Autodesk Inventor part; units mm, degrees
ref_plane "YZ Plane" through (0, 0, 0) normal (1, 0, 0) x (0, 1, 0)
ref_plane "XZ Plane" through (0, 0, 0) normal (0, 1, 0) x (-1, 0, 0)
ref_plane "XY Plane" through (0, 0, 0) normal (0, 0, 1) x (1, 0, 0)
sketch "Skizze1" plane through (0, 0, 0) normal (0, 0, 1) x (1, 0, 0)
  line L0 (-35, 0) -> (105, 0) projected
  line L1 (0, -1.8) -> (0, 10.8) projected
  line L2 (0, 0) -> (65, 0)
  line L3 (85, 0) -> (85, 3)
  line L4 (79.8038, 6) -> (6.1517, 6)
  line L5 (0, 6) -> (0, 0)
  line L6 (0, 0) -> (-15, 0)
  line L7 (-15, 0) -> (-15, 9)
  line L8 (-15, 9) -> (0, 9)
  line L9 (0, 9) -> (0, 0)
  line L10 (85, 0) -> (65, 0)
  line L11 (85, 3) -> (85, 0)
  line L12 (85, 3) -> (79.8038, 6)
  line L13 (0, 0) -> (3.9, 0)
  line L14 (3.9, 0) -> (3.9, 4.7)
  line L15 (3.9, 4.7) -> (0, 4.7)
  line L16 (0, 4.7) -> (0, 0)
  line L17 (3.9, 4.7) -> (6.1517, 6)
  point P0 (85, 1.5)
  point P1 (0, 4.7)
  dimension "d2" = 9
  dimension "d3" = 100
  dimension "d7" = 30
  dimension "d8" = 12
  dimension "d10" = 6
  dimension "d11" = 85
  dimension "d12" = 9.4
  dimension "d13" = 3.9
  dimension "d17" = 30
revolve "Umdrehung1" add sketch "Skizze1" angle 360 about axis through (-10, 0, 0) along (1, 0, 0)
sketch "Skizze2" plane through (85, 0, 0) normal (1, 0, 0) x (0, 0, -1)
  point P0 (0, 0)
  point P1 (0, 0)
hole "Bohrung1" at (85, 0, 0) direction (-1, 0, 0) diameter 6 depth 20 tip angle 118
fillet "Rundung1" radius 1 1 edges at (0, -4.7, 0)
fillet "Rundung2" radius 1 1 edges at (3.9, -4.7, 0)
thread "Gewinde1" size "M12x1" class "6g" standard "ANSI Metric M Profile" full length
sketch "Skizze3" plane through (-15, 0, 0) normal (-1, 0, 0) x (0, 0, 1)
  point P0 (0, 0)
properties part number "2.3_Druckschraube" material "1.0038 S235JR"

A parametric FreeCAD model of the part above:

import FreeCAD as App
import Part
import Sketcher

V = App.Vector
Q = App.Units.Quantity


def edges_at(feature, points):
    """Names of the edges that pass closest to the given points."""
    edges = feature.Shape.Edges
    near = lambda p: min(range(len(edges)), key=lambda i: edges[i].distToShape(Part.Vertex(*p))[0])
    return sorted({f"Edge{near(p) + 1}" for p in points})

doc = App.newDocument("Part")
params = doc.addObject("Spreadsheet::Sheet", "Params")
for row, (alias, value) in enumerate([
    ("sketch1_width", "100 mm"),
    ("sketch1_height", "9 mm"),
    ("sketch1_length", "6 mm"),
    ("sketch1_width2", "3.9 mm"),
    ("sketch1_height2", "3 mm"),
    ("revolution_angle", "360 deg"),
    ("sketch2_diameter", "6 mm"),
    ("hole_diameter", "6 mm"),
    ("hole_depth", "20 mm"),
    ("fillet_radius", "1 mm"),
    ("fillet2_radius", "1 mm"),
], start=1):
    params.set(f"A{row}", alias)
    params.set(f"B{row}", "=" + value)
    params.setAlias(f"B{row}", alias)

body = doc.addObject("PartDesign::Body", "Body")

# Sketch on XY plane
sketch1 = body.newObject("Sketcher::SketchObject", "Sketch")
sketch1.AttachmentSupport = (doc.getObject("XY_Plane"), [""])
sketch1.MapMode = "FlatFace"
sketch1.addGeometry([
    Part.LineSegment(V(-15, 9, 0), V(-15, 0, 0)),  # 0
    Part.LineSegment(V(-15, 0, 0), V(85, 0, 0)),  # 1
    Part.LineSegment(V(85, 0, 0), V(85, 3, 0)),  # 2
    Part.LineSegment(V(85, 3, 0), V(79.8, 6, 0)),  # 3
    Part.LineSegment(V(79.8, 6, 0), V(6.2, 6, 0)),  # 4
    Part.LineSegment(V(6.2, 6, 0), V(3.9, 4.7, 0)),  # 5
    Part.LineSegment(V(3.9, 4.7, 0), V(0, 4.7, 0)),  # 6
    Part.LineSegment(V(0, 4.7, 0), V(0, 9, 0)),  # 7
    Part.LineSegment(V(0, 9, 0), V(-15, 9, 0)),  # 8
], False)
sketch1.addConstraint([
    Sketcher.Constraint("Coincident", 0, 2, 1, 1),
    Sketcher.Constraint("Coincident", 1, 2, 2, 1),
    Sketcher.Constraint("Coincident", 2, 2, 3, 1),
    Sketcher.Constraint("Coincident", 3, 2, 4, 1),
    Sketcher.Constraint("Coincident", 4, 2, 5, 1),
    Sketcher.Constraint("Coincident", 5, 2, 6, 1),
    Sketcher.Constraint("Coincident", 6, 2, 7, 1),
    Sketcher.Constraint("Coincident", 7, 2, 8, 1),
    Sketcher.Constraint("Coincident", 8, 2, 0, 1),
    Sketcher.Constraint("Vertical", 0),
    Sketcher.Constraint("Horizontal", 1),
    Sketcher.Constraint("Vertical", 2),
    Sketcher.Constraint("Horizontal", 4),
    Sketcher.Constraint("Horizontal", 6),
    Sketcher.Constraint("Vertical", 7),
    Sketcher.Constraint("Horizontal", 8),
    Sketcher.Constraint("PointOnObject", 0, 2, -1),
    Sketcher.Constraint("PointOnObject", 6, 2, -2),
    Sketcher.Constraint("DistanceX", 1, 1, 1, 2, 100.0),
    Sketcher.Constraint("DistanceY", 0, 2, 0, 1, 9.0),
    Sketcher.Constraint("Distance", 3, 6.0),
    Sketcher.Constraint("DistanceX", 6, 2, 6, 1, 3.9),
    Sketcher.Constraint("DistanceX", -1, 1, 1, 2, 85.0),
    Sketcher.Constraint("DistanceY", -1, 1, 3, 2, 6.0),
    Sketcher.Constraint("DistanceY", 2, 1, 2, 2, 3.0),
    Sketcher.Constraint("Angle", 5, Q("-150.0004 deg")),
    Sketcher.Constraint("DistanceY", 7, 1, 7, 2, 4.3),
])
sketch1.setExpression("Constraints[18]", "Params.sketch1_width")
sketch1.setExpression("Constraints[19]", "Params.sketch1_height")
sketch1.setExpression("Constraints[20]", "Params.sketch1_length")
sketch1.setExpression("Constraints[21]", "Params.sketch1_width2")
sketch1.setExpression("Constraints[24]", "Params.sketch1_height2")
revolution = body.newObject("PartDesign::Revolution", "Revolution")
revolution.Profile = sketch1
revolution.ReferenceAxis = (sketch1, ["H_Axis"])
revolution.setExpression("Angle", "Params.revolution_angle")

# Sketch on YZ plane
sketch2 = body.newObject("Sketcher::SketchObject", "Sketch001")
sketch2.AttachmentSupport = (doc.getObject("YZ_Plane"), [""])
sketch2.MapMode = "FlatFace"
sketch2.AttachmentOffset = App.Placement(V(0, 0, 85), App.Rotation())
sketch2.addGeometry(Part.Circle(V(0, 0, 0), V(0, 0, 1), 3), False)
sketch2.addConstraint([
    Sketcher.Constraint("Coincident", 0, 3, -1, 1),
    Sketcher.Constraint("Diameter", 0, 6.0),
])
sketch2.setExpression("Constraints[1]", "Params.sketch2_diameter")
doc.recompute()
hole = body.newObject("PartDesign::Hole", "Hole")
hole.Profile = sketch2
hole.ThreadType = "None"
hole.setExpression("Diameter", "Params.hole_diameter")
hole.DepthType = "Dimension"
hole.setExpression("Depth", "Params.hole_depth")
hole.DrillPoint = "Angled"
hole.DrillPointAngle = 118
doc.recompute()

fillet = body.newObject("PartDesign::Fillet", "Fillet")
fillet.Base = (hole, edges_at(hole, [(0, -4.7, 0)]))
fillet.setExpression("Radius", "Params.fillet_radius")
doc.recompute()

fillet2 = body.newObject("PartDesign::Fillet", "Fillet001")
fillet2.Base = (fillet, edges_at(fillet, [(3.9, -4.7, 0)]))
fillet2.setExpression("Radius", "Params.fillet2_radius")

doc.recompute()
